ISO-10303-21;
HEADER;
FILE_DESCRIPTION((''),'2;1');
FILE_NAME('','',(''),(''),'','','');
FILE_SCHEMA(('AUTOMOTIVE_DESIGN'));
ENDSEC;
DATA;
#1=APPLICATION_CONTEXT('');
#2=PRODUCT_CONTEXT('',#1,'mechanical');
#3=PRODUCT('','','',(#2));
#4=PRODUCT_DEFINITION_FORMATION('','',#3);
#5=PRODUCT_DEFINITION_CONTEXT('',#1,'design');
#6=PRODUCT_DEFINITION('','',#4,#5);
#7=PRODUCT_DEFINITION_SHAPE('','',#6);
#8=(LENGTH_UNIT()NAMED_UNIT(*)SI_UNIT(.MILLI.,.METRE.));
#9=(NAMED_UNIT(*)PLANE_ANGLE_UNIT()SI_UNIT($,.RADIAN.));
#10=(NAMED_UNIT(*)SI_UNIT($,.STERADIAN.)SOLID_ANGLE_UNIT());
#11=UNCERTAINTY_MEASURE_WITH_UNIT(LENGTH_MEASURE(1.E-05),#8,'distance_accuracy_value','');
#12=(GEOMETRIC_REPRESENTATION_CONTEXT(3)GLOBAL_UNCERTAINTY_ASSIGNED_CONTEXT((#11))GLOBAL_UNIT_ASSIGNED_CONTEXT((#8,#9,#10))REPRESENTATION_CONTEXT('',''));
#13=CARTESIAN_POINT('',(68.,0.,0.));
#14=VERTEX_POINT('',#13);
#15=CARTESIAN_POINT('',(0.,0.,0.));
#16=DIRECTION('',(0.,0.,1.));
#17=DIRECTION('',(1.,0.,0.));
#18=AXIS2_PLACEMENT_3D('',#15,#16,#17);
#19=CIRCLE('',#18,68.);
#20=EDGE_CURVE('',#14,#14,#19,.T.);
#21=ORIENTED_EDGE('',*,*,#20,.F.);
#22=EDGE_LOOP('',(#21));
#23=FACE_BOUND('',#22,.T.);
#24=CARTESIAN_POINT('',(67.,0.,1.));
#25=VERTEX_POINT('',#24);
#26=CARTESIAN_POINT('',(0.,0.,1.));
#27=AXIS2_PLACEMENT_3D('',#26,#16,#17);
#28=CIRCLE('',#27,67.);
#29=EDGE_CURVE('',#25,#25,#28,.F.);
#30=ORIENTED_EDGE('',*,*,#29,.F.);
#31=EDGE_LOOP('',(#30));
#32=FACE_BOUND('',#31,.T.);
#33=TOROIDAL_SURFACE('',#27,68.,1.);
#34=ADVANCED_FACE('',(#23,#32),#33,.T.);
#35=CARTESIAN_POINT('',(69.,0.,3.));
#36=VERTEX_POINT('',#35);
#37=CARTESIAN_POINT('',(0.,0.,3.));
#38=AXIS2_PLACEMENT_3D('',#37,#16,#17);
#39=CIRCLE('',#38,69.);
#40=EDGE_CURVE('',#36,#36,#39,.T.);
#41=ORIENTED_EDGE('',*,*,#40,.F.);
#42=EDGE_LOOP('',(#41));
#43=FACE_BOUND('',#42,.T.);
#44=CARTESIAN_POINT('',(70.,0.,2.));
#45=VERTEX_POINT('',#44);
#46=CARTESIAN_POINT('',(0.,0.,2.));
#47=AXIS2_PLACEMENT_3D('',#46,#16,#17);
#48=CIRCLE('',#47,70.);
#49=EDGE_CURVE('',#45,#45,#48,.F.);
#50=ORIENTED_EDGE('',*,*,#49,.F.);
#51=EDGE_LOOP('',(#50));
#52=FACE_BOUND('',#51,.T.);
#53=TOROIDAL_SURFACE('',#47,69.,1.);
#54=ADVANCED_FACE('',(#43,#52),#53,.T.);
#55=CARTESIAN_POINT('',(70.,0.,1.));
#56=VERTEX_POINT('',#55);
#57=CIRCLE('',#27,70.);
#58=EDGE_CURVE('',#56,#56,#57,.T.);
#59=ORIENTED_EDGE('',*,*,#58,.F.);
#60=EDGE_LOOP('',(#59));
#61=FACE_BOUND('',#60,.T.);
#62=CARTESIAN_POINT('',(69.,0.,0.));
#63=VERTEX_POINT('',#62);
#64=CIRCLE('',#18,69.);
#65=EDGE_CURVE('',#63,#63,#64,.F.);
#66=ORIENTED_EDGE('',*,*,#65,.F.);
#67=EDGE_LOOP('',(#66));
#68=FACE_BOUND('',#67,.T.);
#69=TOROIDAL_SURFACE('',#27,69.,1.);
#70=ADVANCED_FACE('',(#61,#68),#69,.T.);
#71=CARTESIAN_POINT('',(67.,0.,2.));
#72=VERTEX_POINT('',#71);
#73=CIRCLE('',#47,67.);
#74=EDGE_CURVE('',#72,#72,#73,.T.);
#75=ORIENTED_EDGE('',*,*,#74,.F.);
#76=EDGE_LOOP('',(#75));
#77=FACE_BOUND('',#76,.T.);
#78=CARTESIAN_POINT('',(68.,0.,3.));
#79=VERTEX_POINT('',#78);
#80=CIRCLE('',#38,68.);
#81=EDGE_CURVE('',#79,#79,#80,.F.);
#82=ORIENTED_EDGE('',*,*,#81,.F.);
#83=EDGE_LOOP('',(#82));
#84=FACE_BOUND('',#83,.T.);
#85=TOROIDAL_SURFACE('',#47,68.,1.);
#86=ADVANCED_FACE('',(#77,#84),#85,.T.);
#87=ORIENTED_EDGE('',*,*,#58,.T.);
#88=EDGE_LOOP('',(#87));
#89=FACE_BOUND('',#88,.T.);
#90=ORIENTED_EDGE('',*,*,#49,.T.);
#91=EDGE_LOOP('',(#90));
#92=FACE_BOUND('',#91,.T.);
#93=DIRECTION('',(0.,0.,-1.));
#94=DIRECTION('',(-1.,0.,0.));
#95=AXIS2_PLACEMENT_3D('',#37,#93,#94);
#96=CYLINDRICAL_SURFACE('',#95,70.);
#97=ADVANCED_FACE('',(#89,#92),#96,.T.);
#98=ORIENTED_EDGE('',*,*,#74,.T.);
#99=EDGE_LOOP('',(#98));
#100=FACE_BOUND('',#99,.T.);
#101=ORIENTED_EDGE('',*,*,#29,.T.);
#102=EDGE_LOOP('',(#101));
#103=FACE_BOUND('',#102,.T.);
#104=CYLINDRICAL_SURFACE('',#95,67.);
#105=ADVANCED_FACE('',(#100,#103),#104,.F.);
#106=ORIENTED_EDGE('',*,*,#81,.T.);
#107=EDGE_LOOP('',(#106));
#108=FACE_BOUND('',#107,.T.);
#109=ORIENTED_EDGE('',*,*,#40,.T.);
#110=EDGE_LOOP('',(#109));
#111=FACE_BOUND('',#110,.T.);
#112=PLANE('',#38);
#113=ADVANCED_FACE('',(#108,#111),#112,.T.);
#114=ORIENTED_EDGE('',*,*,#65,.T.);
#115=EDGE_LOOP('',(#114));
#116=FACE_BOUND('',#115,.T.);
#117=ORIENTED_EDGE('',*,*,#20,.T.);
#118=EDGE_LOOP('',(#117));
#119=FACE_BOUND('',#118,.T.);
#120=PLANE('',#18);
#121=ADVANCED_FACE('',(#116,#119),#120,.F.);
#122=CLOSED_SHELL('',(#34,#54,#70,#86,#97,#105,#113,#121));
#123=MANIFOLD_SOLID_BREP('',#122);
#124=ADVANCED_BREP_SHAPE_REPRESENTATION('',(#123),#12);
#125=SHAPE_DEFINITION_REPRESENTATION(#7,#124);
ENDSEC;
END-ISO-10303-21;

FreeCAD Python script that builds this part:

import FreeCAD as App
import Part
import Sketcher
Q = App.Units.Quantity


def edges_at(feature, points):
    """Names of the edges that pass closest to the given points."""
    edges = feature.Shape.Edges
    near = lambda p: min(range(len(edges)), key=lambda i: edges[i].distToShape(Part.Vertex(*p))[0])
    return sorted({f"Edge{near(p) + 1}" for p in points})

doc = App.newDocument("Part")
body = doc.addObject("PartDesign::Body", "Body")

# Sketch on XY plane
sketch1 = doc.addObject("Sketcher::SketchObject", "Sketch")
body.addObject(sketch1)
sketch1.AttachmentSupport = (doc.XY_Plane, [""])
sketch1.MapMode = "FlatFace"
sketch1.addGeometry([
    Part.Circle(App.Vector(0, 0, 0), App.Vector(0, 0, 1), 70),
    Part.Circle(App.Vector(0, 0, 0), App.Vector(0, 0, 1), 67),
], False)
sketch1.addConstraint([
    Sketcher.Constraint("Coincident", 0, 3, -1, 1),
    Sketcher.Constraint("Coincident", 1, 3, -1, 1),
    Sketcher.Constraint("Diameter", 0, Q("140 mm")),
    Sketcher.Constraint("Diameter", 1, Q("134 mm")),
])
pad1 = doc.addObject("PartDesign::Pad", "Pad")
body.addObject(pad1)
pad1.Profile = sketch1
pad1.Length = 3
doc.recompute()

fillet = doc.addObject("PartDesign::Fillet", "Fillet")
body.addObject(fillet)
fillet.Base = (pad1, edges_at(pad1, [
    (-70, 0, 0),
    (-70, 0, 3),
    (-67, 0, 0),
    (-67, 0, 3),
]))
fillet.Radius = 1

doc.recompute()
